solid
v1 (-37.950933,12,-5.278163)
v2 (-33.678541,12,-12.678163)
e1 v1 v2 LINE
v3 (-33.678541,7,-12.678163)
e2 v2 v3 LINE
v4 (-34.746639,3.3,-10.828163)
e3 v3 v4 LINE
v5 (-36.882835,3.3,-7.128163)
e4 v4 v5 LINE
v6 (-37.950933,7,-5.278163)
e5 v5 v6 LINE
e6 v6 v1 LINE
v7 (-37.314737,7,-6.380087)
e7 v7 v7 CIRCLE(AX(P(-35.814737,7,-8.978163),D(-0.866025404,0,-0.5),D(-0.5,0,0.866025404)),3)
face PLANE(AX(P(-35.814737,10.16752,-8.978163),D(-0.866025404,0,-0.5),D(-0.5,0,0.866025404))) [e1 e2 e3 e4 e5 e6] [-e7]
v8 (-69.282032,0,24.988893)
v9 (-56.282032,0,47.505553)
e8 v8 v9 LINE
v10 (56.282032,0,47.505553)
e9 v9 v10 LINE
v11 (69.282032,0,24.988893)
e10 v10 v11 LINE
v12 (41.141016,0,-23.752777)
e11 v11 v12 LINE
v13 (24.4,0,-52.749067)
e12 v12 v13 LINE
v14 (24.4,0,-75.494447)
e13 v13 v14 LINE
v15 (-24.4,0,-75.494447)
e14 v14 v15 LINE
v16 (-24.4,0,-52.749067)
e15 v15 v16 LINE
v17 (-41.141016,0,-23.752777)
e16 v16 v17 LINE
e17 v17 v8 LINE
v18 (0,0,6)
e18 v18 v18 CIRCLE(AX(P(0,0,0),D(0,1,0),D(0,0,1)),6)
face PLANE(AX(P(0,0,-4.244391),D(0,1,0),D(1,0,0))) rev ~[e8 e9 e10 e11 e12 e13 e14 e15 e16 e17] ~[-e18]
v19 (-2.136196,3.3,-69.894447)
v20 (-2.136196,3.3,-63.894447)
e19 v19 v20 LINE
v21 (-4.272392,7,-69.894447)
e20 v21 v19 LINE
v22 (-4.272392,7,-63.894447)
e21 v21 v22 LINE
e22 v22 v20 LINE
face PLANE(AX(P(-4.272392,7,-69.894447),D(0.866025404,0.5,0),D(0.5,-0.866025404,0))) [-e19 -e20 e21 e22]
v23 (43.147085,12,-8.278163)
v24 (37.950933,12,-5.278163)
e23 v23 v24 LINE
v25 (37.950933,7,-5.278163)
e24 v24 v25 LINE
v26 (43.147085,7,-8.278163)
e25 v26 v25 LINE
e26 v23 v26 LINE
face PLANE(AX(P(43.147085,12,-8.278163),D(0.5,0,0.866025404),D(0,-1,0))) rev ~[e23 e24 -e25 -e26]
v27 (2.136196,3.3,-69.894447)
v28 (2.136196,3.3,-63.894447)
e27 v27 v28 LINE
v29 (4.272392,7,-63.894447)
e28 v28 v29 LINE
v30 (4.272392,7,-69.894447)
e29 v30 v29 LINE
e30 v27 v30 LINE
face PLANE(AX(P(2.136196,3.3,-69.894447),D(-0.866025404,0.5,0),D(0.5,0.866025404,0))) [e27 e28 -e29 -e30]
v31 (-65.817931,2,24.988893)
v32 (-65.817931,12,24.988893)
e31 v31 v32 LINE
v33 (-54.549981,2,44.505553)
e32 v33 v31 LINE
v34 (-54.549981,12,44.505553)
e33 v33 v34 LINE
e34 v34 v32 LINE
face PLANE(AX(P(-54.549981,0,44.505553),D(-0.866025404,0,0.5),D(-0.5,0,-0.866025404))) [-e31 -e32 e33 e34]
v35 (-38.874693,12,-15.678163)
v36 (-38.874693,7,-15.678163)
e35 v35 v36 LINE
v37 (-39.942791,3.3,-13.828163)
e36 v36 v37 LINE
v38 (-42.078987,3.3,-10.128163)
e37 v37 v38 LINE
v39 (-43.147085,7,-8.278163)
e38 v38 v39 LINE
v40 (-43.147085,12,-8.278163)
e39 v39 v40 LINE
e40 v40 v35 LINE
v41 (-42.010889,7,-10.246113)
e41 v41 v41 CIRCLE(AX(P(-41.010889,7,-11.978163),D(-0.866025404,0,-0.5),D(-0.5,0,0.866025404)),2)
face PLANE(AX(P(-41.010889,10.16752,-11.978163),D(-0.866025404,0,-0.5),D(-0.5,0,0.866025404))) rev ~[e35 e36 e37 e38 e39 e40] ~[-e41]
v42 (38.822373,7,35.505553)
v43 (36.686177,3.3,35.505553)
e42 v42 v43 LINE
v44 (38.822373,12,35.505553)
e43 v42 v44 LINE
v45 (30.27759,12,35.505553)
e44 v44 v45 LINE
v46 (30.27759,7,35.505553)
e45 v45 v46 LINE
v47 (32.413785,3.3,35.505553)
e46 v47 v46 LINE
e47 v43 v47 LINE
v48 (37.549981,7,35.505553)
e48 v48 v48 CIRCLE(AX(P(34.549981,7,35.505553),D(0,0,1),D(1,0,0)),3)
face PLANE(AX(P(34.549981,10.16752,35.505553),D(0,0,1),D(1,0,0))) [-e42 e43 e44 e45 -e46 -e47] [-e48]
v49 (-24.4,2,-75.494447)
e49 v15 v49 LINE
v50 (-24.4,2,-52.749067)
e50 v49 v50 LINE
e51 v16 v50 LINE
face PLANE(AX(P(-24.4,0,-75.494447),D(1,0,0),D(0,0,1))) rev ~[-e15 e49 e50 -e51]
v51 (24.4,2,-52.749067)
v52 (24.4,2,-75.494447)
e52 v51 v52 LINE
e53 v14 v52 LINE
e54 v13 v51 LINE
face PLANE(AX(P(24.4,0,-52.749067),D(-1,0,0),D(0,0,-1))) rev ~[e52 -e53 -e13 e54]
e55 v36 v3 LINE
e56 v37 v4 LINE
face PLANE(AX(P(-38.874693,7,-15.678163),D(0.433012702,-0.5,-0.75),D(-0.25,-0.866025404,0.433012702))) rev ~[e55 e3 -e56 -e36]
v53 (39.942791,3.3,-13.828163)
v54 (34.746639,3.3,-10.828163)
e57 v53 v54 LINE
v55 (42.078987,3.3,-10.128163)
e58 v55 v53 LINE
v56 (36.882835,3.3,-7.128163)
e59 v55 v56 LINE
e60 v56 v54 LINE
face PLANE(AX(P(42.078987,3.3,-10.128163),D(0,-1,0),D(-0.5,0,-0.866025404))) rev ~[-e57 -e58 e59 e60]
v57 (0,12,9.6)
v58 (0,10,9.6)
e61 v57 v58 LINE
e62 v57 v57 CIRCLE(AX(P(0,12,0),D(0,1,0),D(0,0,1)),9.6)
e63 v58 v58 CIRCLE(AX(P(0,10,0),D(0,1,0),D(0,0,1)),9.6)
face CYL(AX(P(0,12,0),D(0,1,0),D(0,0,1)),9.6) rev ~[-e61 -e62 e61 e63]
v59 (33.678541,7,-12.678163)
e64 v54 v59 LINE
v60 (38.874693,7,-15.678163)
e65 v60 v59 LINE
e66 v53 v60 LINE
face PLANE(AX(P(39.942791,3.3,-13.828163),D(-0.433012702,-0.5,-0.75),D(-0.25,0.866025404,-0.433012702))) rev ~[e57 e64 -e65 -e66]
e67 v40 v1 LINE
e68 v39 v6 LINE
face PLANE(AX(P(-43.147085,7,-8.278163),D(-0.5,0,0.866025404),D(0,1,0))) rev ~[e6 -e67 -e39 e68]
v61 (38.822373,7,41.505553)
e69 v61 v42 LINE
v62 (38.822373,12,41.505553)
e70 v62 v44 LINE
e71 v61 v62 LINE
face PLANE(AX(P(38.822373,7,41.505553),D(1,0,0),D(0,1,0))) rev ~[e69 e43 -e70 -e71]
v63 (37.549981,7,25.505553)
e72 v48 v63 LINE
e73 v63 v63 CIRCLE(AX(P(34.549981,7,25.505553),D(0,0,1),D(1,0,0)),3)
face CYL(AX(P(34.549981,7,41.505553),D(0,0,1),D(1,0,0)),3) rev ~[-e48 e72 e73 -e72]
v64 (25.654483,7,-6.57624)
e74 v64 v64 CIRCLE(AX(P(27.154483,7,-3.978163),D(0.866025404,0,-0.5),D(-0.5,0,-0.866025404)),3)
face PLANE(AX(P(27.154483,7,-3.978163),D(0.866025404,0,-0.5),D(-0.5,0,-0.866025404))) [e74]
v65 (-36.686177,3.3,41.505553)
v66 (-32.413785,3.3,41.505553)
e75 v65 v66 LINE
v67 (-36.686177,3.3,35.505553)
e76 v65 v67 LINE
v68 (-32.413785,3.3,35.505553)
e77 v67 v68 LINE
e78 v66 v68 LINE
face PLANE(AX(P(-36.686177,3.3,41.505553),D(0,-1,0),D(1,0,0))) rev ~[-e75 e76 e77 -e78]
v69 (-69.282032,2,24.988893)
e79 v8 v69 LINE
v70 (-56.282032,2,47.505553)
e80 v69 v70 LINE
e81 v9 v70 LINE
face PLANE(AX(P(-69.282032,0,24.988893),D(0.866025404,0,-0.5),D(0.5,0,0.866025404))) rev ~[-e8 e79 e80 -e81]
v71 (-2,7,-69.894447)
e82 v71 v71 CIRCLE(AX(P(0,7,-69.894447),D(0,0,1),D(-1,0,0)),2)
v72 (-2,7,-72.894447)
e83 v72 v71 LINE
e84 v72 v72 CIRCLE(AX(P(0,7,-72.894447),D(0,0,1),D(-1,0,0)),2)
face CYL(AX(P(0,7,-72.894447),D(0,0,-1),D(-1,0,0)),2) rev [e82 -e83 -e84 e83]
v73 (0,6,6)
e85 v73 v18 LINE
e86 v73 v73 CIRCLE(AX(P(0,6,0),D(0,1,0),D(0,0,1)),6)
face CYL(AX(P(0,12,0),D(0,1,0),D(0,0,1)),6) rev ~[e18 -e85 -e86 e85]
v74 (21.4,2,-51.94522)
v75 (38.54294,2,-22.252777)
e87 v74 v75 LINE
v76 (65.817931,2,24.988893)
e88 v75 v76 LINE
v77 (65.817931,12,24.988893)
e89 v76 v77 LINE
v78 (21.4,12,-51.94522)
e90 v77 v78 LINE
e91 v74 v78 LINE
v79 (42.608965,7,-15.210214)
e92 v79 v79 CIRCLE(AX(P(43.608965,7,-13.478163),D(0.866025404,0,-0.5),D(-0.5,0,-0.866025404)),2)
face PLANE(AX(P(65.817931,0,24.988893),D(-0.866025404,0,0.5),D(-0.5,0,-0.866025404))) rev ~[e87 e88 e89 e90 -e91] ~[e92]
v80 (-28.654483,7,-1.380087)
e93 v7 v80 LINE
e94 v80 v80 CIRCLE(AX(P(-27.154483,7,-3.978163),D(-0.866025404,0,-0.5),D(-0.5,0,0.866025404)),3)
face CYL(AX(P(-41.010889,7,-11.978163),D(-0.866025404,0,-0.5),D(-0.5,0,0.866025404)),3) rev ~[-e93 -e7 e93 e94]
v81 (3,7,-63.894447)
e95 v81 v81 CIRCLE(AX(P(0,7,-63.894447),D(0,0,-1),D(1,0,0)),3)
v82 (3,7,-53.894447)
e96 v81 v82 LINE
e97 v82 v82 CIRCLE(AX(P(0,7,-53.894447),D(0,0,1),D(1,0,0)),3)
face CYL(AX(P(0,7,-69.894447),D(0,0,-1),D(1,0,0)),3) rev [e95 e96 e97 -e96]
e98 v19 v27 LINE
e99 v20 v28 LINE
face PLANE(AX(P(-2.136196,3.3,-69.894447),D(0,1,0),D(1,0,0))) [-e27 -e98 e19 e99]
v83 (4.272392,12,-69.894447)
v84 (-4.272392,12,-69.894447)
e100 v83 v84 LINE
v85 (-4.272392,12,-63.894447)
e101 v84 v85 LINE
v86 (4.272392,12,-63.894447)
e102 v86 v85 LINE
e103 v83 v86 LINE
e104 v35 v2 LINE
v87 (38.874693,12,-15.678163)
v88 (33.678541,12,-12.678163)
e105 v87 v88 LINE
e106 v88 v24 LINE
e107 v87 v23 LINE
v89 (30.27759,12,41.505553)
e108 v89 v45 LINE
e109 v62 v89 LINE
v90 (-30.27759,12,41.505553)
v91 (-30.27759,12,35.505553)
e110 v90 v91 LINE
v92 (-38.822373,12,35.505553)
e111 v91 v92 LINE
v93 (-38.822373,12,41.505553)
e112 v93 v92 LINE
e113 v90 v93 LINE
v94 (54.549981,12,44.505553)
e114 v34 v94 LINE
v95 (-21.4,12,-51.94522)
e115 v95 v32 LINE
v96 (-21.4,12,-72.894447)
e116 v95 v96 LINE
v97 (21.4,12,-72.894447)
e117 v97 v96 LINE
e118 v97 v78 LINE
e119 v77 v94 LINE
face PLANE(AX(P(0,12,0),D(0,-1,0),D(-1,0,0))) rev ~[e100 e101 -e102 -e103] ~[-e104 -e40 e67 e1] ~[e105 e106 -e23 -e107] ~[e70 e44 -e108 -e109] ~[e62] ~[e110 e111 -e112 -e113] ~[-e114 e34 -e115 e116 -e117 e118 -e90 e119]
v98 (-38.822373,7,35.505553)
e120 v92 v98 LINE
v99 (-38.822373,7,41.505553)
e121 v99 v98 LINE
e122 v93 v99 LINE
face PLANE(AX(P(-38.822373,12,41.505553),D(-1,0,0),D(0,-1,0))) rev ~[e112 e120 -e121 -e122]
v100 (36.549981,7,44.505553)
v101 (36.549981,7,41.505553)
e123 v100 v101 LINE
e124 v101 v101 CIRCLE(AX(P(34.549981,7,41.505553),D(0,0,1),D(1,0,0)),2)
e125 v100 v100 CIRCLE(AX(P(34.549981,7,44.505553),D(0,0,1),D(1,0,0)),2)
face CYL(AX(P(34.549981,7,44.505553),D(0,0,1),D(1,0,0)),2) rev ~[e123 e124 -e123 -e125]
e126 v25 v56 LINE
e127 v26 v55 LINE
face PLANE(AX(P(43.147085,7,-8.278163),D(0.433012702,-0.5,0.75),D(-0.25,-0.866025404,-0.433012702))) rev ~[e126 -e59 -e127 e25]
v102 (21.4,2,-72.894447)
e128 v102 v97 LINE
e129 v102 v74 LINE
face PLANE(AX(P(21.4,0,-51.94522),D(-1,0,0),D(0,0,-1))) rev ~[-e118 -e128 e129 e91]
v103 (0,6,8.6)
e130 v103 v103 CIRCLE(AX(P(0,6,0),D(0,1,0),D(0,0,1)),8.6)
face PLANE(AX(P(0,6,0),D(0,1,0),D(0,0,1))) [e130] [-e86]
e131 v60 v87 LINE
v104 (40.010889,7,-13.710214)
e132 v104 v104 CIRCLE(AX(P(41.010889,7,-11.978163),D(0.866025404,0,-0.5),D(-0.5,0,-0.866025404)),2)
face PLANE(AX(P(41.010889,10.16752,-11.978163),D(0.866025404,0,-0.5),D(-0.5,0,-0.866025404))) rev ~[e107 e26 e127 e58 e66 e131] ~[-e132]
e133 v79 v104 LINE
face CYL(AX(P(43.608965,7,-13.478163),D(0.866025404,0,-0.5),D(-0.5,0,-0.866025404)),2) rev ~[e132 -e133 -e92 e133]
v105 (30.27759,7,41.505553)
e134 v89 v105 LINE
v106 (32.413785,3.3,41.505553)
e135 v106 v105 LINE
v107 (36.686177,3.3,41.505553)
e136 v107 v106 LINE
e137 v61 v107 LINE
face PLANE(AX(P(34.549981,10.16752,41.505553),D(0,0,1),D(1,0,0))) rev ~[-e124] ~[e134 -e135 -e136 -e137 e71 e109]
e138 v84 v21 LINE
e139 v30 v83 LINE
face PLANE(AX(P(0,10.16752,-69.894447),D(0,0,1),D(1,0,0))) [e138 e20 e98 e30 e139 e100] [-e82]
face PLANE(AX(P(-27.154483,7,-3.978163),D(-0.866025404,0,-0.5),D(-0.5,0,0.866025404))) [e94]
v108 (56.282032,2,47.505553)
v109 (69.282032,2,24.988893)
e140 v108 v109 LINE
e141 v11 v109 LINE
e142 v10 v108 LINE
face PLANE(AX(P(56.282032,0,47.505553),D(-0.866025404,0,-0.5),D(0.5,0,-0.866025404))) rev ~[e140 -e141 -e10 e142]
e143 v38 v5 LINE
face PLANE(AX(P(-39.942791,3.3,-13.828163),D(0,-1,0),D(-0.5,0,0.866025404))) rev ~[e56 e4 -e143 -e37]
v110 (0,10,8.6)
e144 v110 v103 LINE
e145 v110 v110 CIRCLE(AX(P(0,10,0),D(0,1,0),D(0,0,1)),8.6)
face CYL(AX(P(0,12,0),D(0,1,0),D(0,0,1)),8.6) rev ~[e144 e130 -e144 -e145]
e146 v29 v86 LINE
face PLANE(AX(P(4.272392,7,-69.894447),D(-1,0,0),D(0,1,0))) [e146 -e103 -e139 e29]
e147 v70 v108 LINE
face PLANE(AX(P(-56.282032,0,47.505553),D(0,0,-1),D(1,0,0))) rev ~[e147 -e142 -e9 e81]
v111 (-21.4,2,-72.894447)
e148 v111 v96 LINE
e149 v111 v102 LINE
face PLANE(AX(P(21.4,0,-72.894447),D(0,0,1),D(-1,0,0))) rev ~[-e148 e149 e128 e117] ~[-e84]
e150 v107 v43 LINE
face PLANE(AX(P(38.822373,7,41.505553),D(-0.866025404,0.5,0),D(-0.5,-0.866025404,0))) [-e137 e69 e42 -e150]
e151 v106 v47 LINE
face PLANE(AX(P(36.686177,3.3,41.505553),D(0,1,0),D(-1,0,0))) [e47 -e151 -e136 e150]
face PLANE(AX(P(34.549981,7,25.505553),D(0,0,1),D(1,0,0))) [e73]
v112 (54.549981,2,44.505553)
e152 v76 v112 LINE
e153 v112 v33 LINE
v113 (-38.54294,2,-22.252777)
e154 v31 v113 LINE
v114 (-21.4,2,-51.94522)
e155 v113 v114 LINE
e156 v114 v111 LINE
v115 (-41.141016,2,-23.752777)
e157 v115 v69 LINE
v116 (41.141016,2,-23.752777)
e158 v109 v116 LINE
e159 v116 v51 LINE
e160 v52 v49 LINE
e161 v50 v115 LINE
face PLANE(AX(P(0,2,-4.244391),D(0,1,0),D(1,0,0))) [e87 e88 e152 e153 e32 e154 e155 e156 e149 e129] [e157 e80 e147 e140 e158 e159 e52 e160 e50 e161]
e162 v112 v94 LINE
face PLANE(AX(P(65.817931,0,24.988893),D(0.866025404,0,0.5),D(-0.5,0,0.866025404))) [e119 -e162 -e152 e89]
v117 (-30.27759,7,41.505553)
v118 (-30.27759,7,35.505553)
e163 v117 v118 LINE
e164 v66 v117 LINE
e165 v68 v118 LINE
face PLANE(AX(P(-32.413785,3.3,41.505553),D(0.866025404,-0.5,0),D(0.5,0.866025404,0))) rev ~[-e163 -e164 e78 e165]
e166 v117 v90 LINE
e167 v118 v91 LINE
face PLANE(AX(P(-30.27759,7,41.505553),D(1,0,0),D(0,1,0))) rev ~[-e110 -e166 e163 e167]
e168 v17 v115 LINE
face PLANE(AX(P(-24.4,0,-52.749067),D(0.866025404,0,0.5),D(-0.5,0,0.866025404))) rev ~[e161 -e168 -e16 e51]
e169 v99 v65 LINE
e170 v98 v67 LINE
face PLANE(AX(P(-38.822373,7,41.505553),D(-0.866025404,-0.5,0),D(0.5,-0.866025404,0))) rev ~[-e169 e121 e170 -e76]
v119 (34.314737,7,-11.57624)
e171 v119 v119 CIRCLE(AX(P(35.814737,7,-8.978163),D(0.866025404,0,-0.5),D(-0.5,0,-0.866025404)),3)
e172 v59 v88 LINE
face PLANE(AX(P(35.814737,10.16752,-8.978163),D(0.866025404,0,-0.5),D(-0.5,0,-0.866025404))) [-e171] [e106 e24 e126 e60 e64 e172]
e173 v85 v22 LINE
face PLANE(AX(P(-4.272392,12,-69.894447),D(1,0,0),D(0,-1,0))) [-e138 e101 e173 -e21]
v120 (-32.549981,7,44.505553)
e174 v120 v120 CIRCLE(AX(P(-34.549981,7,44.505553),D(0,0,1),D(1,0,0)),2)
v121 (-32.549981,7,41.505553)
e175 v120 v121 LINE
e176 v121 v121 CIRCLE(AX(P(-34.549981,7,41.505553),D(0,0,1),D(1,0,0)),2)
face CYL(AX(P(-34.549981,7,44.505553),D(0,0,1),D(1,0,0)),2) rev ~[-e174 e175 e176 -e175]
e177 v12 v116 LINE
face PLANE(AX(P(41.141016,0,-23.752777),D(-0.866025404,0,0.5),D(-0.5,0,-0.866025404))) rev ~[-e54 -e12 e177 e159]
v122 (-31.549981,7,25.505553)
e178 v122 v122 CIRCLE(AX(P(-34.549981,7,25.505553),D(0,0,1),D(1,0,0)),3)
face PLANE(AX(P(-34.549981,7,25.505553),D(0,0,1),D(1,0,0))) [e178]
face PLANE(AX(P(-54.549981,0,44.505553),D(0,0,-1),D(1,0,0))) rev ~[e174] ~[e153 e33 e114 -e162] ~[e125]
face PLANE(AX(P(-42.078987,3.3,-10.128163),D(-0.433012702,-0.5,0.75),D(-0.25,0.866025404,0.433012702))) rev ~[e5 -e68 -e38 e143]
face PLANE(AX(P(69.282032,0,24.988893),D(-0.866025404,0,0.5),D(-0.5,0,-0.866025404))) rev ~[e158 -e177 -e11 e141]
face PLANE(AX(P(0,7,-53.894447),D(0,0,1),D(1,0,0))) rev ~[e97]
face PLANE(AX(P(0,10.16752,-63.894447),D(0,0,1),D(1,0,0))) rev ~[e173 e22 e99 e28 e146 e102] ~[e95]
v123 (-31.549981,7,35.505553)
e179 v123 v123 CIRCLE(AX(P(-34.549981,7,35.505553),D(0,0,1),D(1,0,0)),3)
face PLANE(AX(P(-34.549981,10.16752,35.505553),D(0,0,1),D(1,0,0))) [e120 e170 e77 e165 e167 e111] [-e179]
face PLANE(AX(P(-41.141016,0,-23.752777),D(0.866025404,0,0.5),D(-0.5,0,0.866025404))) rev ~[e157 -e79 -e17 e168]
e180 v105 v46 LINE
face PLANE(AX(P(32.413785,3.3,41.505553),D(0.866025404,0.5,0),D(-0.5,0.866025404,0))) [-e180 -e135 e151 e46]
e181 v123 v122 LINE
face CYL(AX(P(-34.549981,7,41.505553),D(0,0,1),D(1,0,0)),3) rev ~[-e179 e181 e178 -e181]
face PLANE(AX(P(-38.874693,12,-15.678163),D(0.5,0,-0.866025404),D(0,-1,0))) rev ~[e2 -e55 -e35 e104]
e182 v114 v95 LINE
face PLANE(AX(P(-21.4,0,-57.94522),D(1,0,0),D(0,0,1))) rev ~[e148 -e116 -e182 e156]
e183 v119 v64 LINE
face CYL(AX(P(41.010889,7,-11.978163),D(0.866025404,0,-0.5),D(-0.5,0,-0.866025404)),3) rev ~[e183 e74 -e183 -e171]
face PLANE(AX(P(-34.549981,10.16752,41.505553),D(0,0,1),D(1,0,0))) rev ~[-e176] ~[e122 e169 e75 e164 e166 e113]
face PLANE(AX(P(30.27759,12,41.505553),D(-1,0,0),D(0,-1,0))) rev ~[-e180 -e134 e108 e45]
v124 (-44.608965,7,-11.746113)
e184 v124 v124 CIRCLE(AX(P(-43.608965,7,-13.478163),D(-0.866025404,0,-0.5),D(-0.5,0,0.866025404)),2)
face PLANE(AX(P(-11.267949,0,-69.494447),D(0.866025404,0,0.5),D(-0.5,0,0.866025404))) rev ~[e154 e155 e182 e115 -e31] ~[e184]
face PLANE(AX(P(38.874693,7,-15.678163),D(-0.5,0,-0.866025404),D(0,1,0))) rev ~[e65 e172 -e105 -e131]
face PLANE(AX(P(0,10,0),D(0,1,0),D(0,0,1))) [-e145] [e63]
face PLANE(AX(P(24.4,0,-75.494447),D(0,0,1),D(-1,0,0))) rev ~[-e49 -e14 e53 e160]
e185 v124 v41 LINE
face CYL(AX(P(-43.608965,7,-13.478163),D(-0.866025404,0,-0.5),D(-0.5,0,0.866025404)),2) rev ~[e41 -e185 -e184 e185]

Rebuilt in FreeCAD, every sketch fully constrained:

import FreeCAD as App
import Part
import Sketcher
Q = App.Units.Quantity

doc = App.newDocument("Part")
body = doc.addObject("PartDesign::Body", "Body")

sketch1 = body.newObject("Sketcher::SketchObject", "Sketch")
sketch1.AttachmentSupport = (doc.getObject("XZ_Plane"), [""])
sketch1.MapMode = "FlatFace"
sketch1.addGeometry([
    Part.LineSegment(App.Vector(-21, -52, 0), App.Vector(-66, 25, 0)),
    Part.LineSegment(App.Vector(-66, 25, 0), App.Vector(-55, 45, 0)),
    Part.LineSegment(App.Vector(-55, 45, 0), App.Vector(55, 45, 0)),
    Part.LineSegment(App.Vector(55, 45, 0), App.Vector(66, 25, 0)),
    Part.LineSegment(App.Vector(66, 25, 0), App.Vector(21, -52, 0)),
    Part.LineSegment(App.Vector(21, -52, 0), App.Vector(21, -73, 0)),
    Part.LineSegment(App.Vector(21, -73, 0), App.Vector(-21, -73, 0)),
    Part.LineSegment(App.Vector(-21, -73, 0), App.Vector(-21, -52, 0)),
], False)
sketch1.addConstraint([
    Sketcher.Constraint("Coincident", 0, 2, 1, 1),
    Sketcher.Constraint("Coincident", 1, 2, 2, 1),
    Sketcher.Constraint("Coincident", 2, 2, 3, 1),
    Sketcher.Constraint("Coincident", 3, 2, 4, 1),
    Sketcher.Constraint("Coincident", 4, 2, 5, 1),
    Sketcher.Constraint("Coincident", 5, 2, 6, 1),
    Sketcher.Constraint("Coincident", 6, 2, 7, 1),
    Sketcher.Constraint("Coincident", 7, 2, 0, 1),
    Sketcher.Constraint("Horizontal", 2),
    Sketcher.Constraint("Vertical", 5),
    Sketcher.Constraint("Horizontal", 6),
    Sketcher.Constraint("Vertical", 7),
    Sketcher.Constraint("Symmetric", 0, 2, 3, 2, -2),
    Sketcher.Constraint("Symmetric", 4, 2, 7, 2, -2),
    Sketcher.Constraint("Parallel", 0, 3),
    Sketcher.Constraint("Parallel", 1, 4),
    Sketcher.Constraint("Angle", 0, Q("120 deg")),
    Sketcher.Constraint("DistanceX", 6, 2, 6, 1, Q("42.8 mm")),
    Sketcher.Constraint("DistanceY", 5, 2, 2, 2, Q("117.4 mm")),
    Sketcher.Constraint("Distance", 1, Q("22.535898 mm")),
    Sketcher.Constraint("Distance", 0, Q("88.835861 mm")),
    Sketcher.Constraint("DistanceY", 4, 2, -1, 1, Q("51.94522 mm")),
])
pad1 = body.newObject("PartDesign::Pad", "Pad")
pad1.Profile = sketch1
pad1.Length = 12
pad1.Reversed = True

sketch2 = body.newObject("Sketcher::SketchObject", "Sketch001")
sketch2.AttachmentSupport = (doc.getObject("XZ_Plane"), [""])
sketch2.MapMode = "FlatFace"
sketch2.addGeometry([
    Part.LineSegment(App.Vector(56, 48, 0), App.Vector(69, 25, 0)),
    Part.LineSegment(App.Vector(69, 25, 0), App.Vector(41, -24, 0)),
    Part.LineSegment(App.Vector(41, -24, 0), App.Vector(24, -53, 0)),
    Part.LineSegment(App.Vector(24, -53, 0), App.Vector(24, -75, 0)),
    Part.LineSegment(App.Vector(24, -75, 0), App.Vector(-24, -75, 0)),
    Part.LineSegment(App.Vector(-24, -75, 0), App.Vector(-24, -53, 0)),
    Part.LineSegment(App.Vector(-24, -53, 0), App.Vector(-41, -24, 0)),
    Part.LineSegment(App.Vector(-41, -24, 0), App.Vector(-69, 25, 0)),
    Part.LineSegment(App.Vector(-69, 25, 0), App.Vector(-56, 48, 0)),
    Part.LineSegment(App.Vector(-56, 48, 0), App.Vector(56, 48, 0)),
    Part.LineSegment(App.Vector(-39, -22, 0), App.Vector(-21, -52, 0)),
    Part.LineSegment(App.Vector(-21, -52, 0), App.Vector(-21, -73, 0)),
    Part.LineSegment(App.Vector(-21, -73, 0), App.Vector(21, -73, 0)),
    Part.LineSegment(App.Vector(21, -73, 0), App.Vector(21, -52, 0)),
    Part.LineSegment(App.Vector(21, -52, 0), App.Vector(39, -22, 0)),
    Part.LineSegment(App.Vector(39, -22, 0), App.Vector(66, 25, 0)),
    Part.LineSegment(App.Vector(66, 25, 0), App.Vector(55, 45, 0)),
    Part.LineSegment(App.Vector(55, 45, 0), App.Vector(-55, 45, 0)),
    Part.LineSegment(App.Vector(-55, 45, 0), App.Vector(-66, 25, 0)),
    Part.LineSegment(App.Vector(-66, 25, 0), App.Vector(-39, -22, 0)),
], False)
sketch2.addConstraint([
    Sketcher.Constraint("Coincident", 0, 2, 1, 1),
    Sketcher.Constraint("Coincident", 1, 2, 2, 1),
    Sketcher.Constraint("Coincident", 2, 2, 3, 1),
    Sketcher.Constraint("Coincident", 3, 2, 4, 1),
    Sketcher.Constraint("Coincident", 4, 2, 5, 1),
    Sketcher.Constraint("Coincident", 5, 2, 6, 1),
    Sketcher.Constraint("Coincident", 6, 2, 7, 1),
    Sketcher.Constraint("Coincident", 7, 2, 8, 1),
    Sketcher.Constraint("Coincident", 8, 2, 9, 1),
    Sketcher.Constraint("Coincident", 9, 2, 0, 1),
    Sketcher.Constraint("Coincident", 10, 2, 11, 1),
    Sketcher.Constraint("Coincident", 11, 2, 12, 1),
    Sketcher.Constraint("Coincident", 12, 2, 13, 1),
    Sketcher.Constraint("Coincident", 13, 2, 14, 1),
    Sketcher.Constraint("Coincident", 14, 2, 15, 1),
    Sketcher.Constraint("Coincident", 15, 2, 16, 1),
    Sketcher.Constraint("Coincident", 16, 2, 17, 1),
    Sketcher.Constraint("Coincident", 17, 2, 18, 1),
    Sketcher.Constraint("Coincident", 18, 2, 19, 1),
    Sketcher.Constraint("Coincident", 19, 2, 10, 1),
    Sketcher.Constraint("Vertical", 3),
    Sketcher.Constraint("Horizontal", 4),
    Sketcher.Constraint("Vertical", 5),
    Sketcher.Constraint("Horizontal", 9),
    Sketcher.Constraint("Vertical", 11),
    Sketcher.Constraint("Horizontal", 12),
    Sketcher.Constraint("Vertical", 13),
    Sketcher.Constraint("Horizontal", 17),
    Sketcher.Constraint("Symmetric", 2, 2, 5, 2, -2),
    Sketcher.Constraint("Symmetric", 1, 2, 6, 2, -2),
    Sketcher.Constraint("Symmetric", 0, 2, 7, 2, -2),
    Sketcher.Constraint("Symmetric", 10, 2, 13, 2, -2),
    Sketcher.Constraint("Symmetric", 15, 2, 18, 2, -2),
    Sketcher.Constraint("Symmetric", 14, 2, 19, 2, -2),
    Sketcher.Constraint("Parallel", 1, 2),
    Sketcher.Constraint("Parallel", 0, 6),
    Sketcher.Constraint("Parallel", 2, 8),
    Sketcher.Constraint("Parallel", 7, 10),
    Sketcher.Constraint("Parallel", 14, 15),
    Sketcher.Constraint("Parallel", 10, 16),
    Sketcher.Constraint("Parallel", 15, 18),
    Sketcher.Constraint("Horizontal", 7, 2, 15, 2),
    Sketcher.Constraint("Angle", 0, Q("-60 deg")),
    Sketcher.Constraint("Distance", 0, Q("26 mm")),
    Sketcher.Constraint("DistanceX", 4, 2, 4, 1, Q("48.8 mm")),
    Sketcher.Constraint("DistanceX", 12, 1, 12, 2, Q("42.8 mm")),
    Sketcher.Constraint("DistanceY", 4, 2, 8, 2, Q("123 mm")),
    Sketcher.Constraint("DistanceY", 16, 2, 9, 2, Q("3 mm")),
    Sketcher.Constraint("DistanceY", 4, 2, 11, 2, Q("2.6 mm")),
    Sketcher.Constraint("DistanceY", 1, 2, 14, 2, Q("1.5 mm")),
    Sketcher.Constraint("DistanceY", 3, 2, 3, 1, Q("22.745379 mm")),
    Sketcher.Constraint("DistanceX", 15, 2, 0, 2, Q("3.464102 mm")),
    Sketcher.Constraint("Distance", 10, Q("34.28588 mm")),
    Sketcher.Constraint("DistanceY", 10, 2, -1, 1, Q("51.94522 mm")),
])
pad2 = body.newObject("PartDesign::Pad", "Pad001")
pad2.Profile = sketch2
pad2.Length = 2
pad2.Reversed = True

sketch3 = body.newObject("Sketcher::SketchObject", "Sketch002")
sketch3.AttachmentSupport = (doc.getObject("XZ_Plane"), [""])
sketch3.MapMode = "FlatFace"
sketch3.AttachmentOffset = App.Placement(App.Vector(0, 0, -12), App.Rotation())
sketch3.addGeometry([
    Part.Circle(App.Vector(0, 0, 0), App.Vector(0, 0, 1), 10),
    Part.Circle(App.Vector(0, 0, 0), App.Vector(0, 0, 1), 9),
], False)
sketch3.addConstraint([
    Sketcher.Constraint("Coincident", 0, 3, -1, 1),
    Sketcher.Constraint("Coincident", 1, 3, -1, 1),
    Sketcher.Constraint("Diameter", 0, Q("19.2 mm")),
    Sketcher.Constraint("Diameter", 1, Q("17.2 mm")),
])
pocket1 = body.newObject("PartDesign::Pocket", "Pocket")
pocket1.Profile = sketch3
pocket1.Length = 2
pocket1.Reversed = True

sketch4 = body.newObject("Sketcher::SketchObject", "Sketch003")
sketch4.AttachmentSupport = (doc.getObject("XZ_Plane"), [""])
sketch4.MapMode = "FlatFace"
sketch4.AttachmentOffset = App.Placement(App.Vector(0, 0, -12), App.Rotation())
sketch4.addGeometry([
    Part.Circle(App.Vector(0, 0, 0), App.Vector(0, 0, 1), 9),
    Part.Circle(App.Vector(0, 0, 0), App.Vector(0, 0, 1), 6),
], False)
sketch4.addConstraint([
    Sketcher.Constraint("Coincident", 0, 3, -1, 1),
    Sketcher.Constraint("Coincident", 1, 3, -1, 1),
    Sketcher.Constraint("Diameter", 1, Q("12 mm")),
    Sketcher.Constraint("Diameter", 0, Q("17.2 mm")),
])
pocket2 = body.newObject("PartDesign::Pocket", "Pocket001")
pocket2.Profile = sketch4
pocket2.Length = 6
pocket2.Reversed = True

sketch5 = body.newObject("Sketcher::SketchObject", "Sketch004")
sketch5.AttachmentSupport = (doc.getObject("XZ_Plane"), [""])
sketch5.MapMode = "FlatFace"
sketch5.AttachmentOffset = App.Placement(App.Vector(0, 0, -12), App.Rotation())
sketch5.addGeometry(Part.Circle(App.Vector(0, 0, 0), App.Vector(0, 0, 1), 6), False)
sketch5.addConstraint([
    Sketcher.Constraint("Coincident", 0, 3, -1, 1),
    Sketcher.Constraint("Diameter", 0, Q("12 mm")),
])
pocket3 = body.newObject("PartDesign::Pocket", "Pocket002")
pocket3.Profile = sketch5
pocket3.Type = "ThroughAll"
pocket3.Reversed = True

sketch6 = body.newObject("Sketcher::SketchObject", "Sketch005")
sketch6.AttachmentSupport = (doc.getObject("XY_Plane"), [""])
sketch6.MapMode = "FlatFace"
sketch6.AttachmentOffset = App.Placement(App.Vector(0, 0, 44.505553), App.Rotation())
sketch6.addGeometry([
    Part.Circle(App.Vector(-34.5, 7, 0), App.Vector(0, 0, 1), 2),
    Part.Circle(App.Vector(34.5, 7, 0), App.Vector(0, 0, 1), 2),
], False)
sketch6.addConstraint([
    Sketcher.Constraint("Equal", 0, 1),
    Sketcher.Constraint("Symmetric", 0, 3, 1, 3, -2),
    Sketcher.Constraint("Diameter", 0, Q("4 mm")),
    Sketcher.Constraint("DistanceY", -1, 1, 0, 3, Q("7 mm")),
    Sketcher.Constraint("DistanceX", 0, 3, -1, 1, Q("34.549981 mm")),
])
pocket4 = body.newObject("PartDesign::Pocket", "Pocket003")
pocket4.Profile = sketch6
pocket4.Length = 3

sketch7 = body.newObject("Sketcher::SketchObject", "Sketch006")
sketch7.AttachmentSupport = (doc.getObject("XY_Plane"), [""])
sketch7.MapMode = "FlatFace"
sketch7.AttachmentOffset = App.Placement(App.Vector(0, 0, 41.505553), App.Rotation())
sketch7.addGeometry([
    Part.LineSegment(App.Vector(-38.8, 12, 0), App.Vector(-38.8, 7, 0)),
    Part.LineSegment(App.Vector(-38.8, 7, 0), App.Vector(-36.7, 3.3, 0)),
    Part.LineSegment(App.Vector(-36.7, 3.3, 0), App.Vector(-32.4, 3.3, 0)),
    Part.LineSegment(App.Vector(-32.4, 3.3, 0), App.Vector(-30.3, 7, 0)),
    Part.LineSegment(App.Vector(-30.3, 7, 0), App.Vector(-30.3, 12, 0)),
    Part.LineSegment(App.Vector(-30.3, 12, 0), App.Vector(-38.8, 12, 0)),
    Part.LineSegment(App.Vector(36.7, 3.3, 0), App.Vector(38.8, 7, 0)),
    Part.LineSegment(App.Vector(38.8, 7, 0), App.Vector(38.8, 12, 0)),
    Part.LineSegment(App.Vector(38.8, 12, 0), App.Vector(30.3, 12, 0)),
    Part.LineSegment(App.Vector(30.3, 12, 0), App.Vector(30.3, 7, 0)),
    Part.LineSegment(App.Vector(30.3, 7, 0), App.Vector(32.4, 3.3, 0)),
    Part.LineSegment(App.Vector(32.4, 3.3, 0), App.Vector(36.7, 3.3, 0)),
], False)
sketch7.addConstraint([
    Sketcher.Constraint("Coincident", 0, 2, 1, 1),
    Sketcher.Constraint("Coincident", 1, 2, 2, 1),
    Sketcher.Constraint("Coincident", 2, 2, 3, 1),
    Sketcher.Constraint("Coincident", 3, 2, 4, 1),
    Sketcher.Constraint("Coincident", 4, 2, 5, 1),
    Sketcher.Constraint("Coincident", 5, 2, 0, 1),
    Sketcher.Constraint("Coincident", 6, 2, 7, 1),
    Sketcher.Constraint("Coincident", 7, 2, 8, 1),
    Sketcher.Constraint("Coincident", 8, 2, 9, 1),
    Sketcher.Constraint("Coincident", 9, 2, 10, 1),
    Sketcher.Constraint("Coincident", 10, 2, 11, 1),
    Sketcher.Constraint("Coincident", 11, 2, 6, 1),
    Sketcher.Constraint("Vertical", 0),
    Sketcher.Constraint("Horizontal", 2),
    Sketcher.Constraint("Vertical", 4),
    Sketcher.Constraint("Horizontal", 5),
    Sketcher.Constraint("Vertical", 7),
    Sketcher.Constraint("Horizontal", 8),
    Sketcher.Constraint("Vertical", 9),
    Sketcher.Constraint("Horizontal", 11),
    Sketcher.Constraint("Symmetric", 0, 2, 6, 2, -2),
    Sketcher.Constraint("Symmetric", 4, 2, 8, 2, -2),
    Sketcher.Constraint("Symmetric", 2, 2, 10, 2, -2),
    Sketcher.Constraint("Parallel", 3, 6),
    Sketcher.Constraint("Parallel", 1, 10),
    Sketcher.Constraint("Horizontal", 0, 2, 3, 2),
    Sketcher.Constraint("Horizontal", 6, 2, 9, 2),
    Sketcher.Constraint("DistanceY", 0, 2, 0, 1, Q("5 mm")),
    Sketcher.Constraint("Angle", 1, Q("-60 deg")),
    Sketcher.Constraint("DistanceY", -1, 1, 0, 2, Q("7 mm")),
    Sketcher.Constraint("DistanceY", -1, 1, 1, 2, Q("3.3 mm")),
    Sketcher.Constraint("DistanceX", 2, 1, 2, 2, Q("4.272392 mm")),
    Sketcher.Constraint("DistanceX", 3, 2, -1, 1, Q("30.27759 mm")),
])
pocket5 = body.newObject("PartDesign::Pocket", "Pocket004")
pocket5.Profile = sketch7
pocket5.Length = 6

sketch8 = body.newObject("Sketcher::SketchObject", "Sketch007")
sketch8.AttachmentSupport = (doc.getObject("XY_Plane"), [""])
sketch8.MapMode = "FlatFace"
sketch8.AttachmentOffset = App.Placement(App.Vector(0, 0, 41.505553), App.Rotation())
sketch8.addGeometry([
    Part.Circle(App.Vector(-34.5, 7, 0), App.Vector(0, 0, 1), 3),
    Part.Circle(App.Vector(34.5, 7, 0), App.Vector(0, 0, 1), 3),
], False)
sketch8.addConstraint([
    Sketcher.Constraint("Equal", 0, 1),
    Sketcher.Constraint("Symmetric", 0, 3, 1, 3, -2),
    Sketcher.Constraint("Diameter", 0, Q("6 mm")),
    Sketcher.Constraint("DistanceY", -1, 1, 0, 3, Q("7 mm")),
    Sketcher.Constraint("DistanceX", 0, 3, -1, 1, Q("34.549981 mm")),
])
pocket6 = body.newObject("PartDesign::Pocket", "Pocket005")
pocket6.Profile = sketch8
pocket6.Length = 16

sketch9 = body.newObject("Sketcher::SketchObject", "Sketch008")
sketch9.AttachmentSupport = (doc.getObject("XY_Plane"), [""])
sketch9.MapMode = "FlatFace"
sketch9.AttachmentOffset = App.Placement(App.Vector(0, 0, -72.894447), App.Rotation())
sketch9.addGeometry(Part.Circle(App.Vector(0, 7, 0), App.Vector(0, 0, 1), 2), False)
sketch9.addConstraint([
    Sketcher.Constraint("PointOnObject", 0, 3, -2),
    Sketcher.Constraint("Diameter", 0, Q("4 mm")),
    Sketcher.Constraint("DistanceY", -1, 1, 0, 3, Q("7 mm")),
])
pocket7 = body.newObject("PartDesign::Pocket", "Pocket006")
pocket7.Profile = sketch9
pocket7.Length = 3
pocket7.Reversed = True

sketch10 = body.newObject("Sketcher::SketchObject", "Sketch009")
sketch10.AttachmentSupport = (doc.getObject("XY_Plane"), [""])
sketch10.MapMode = "FlatFace"
sketch10.AttachmentOffset = App.Placement(App.Vector(0, 0, -69.894447), App.Rotation())
sketch10.addGeometry([
    Part.LineSegment(App.Vector(4.3, 7, 0), App.Vector(4.3, 12, 0)),
    Part.LineSegment(App.Vector(4.3, 12, 0), App.Vector(-4.3, 12, 0)),
    Part.LineSegment(App.Vector(-4.3, 12, 0), App.Vector(-4.3, 7, 0)),
    Part.LineSegment(App.Vector(-4.3, 7, 0), App.Vector(-2.1, 3.3, 0)),
    Part.LineSegment(App.Vector(-2.1, 3.3, 0), App.Vector(2.1, 3.3, 0)),
    Part.LineSegment(App.Vector(2.1, 3.3, 0), App.Vector(4.3, 7, 0)),
], False)
sketch10.addConstraint([
    Sketcher.Constraint("Coincident", 0, 2, 1, 1),
    Sketcher.Constraint("Coincident", 1, 2, 2, 1),
    Sketcher.Constraint("Coincident", 2, 2, 3, 1),
    Sketcher.Constraint("Coincident", 3, 2, 4, 1),
    Sketcher.Constraint("Coincident", 4, 2, 5, 1),
    Sketcher.Constraint("Coincident", 5, 2, 0, 1),
    Sketcher.Constraint("Vertical", 0),
    Sketcher.Constraint("Horizontal", 1),
    Sketcher.Constraint("Vertical", 2),
    Sketcher.Constraint("Horizontal", 4),
    Sketcher.Constraint("Symmetric", 2, 2, 5, 2, -2),
    Sketcher.Constraint("Equal", 3, 5),
    Sketcher.Constraint("DistanceY", 0, 1, 0, 2, Q("5 mm")),
    Sketcher.Constraint("Angle", 3, Q("-60 deg")),
    Sketcher.Constraint("DistanceY", -1, 1, 0, 2, Q("12 mm")),
    Sketcher.Constraint("DistanceY", -1, 1, 3, 2, Q("3.3 mm")),
    Sketcher.Constraint("DistanceX", 4, 1, 4, 2, Q("4.272392 mm")),
])
pocket8 = body.newObject("PartDesign::Pocket", "Pocket007")
pocket8.Profile = sketch10
pocket8.Length = 6
pocket8.Reversed = True

sketch11 = body.newObject("Sketcher::SketchObject", "Sketch010")
sketch11.AttachmentSupport = (doc.getObject("XY_Plane"), [""])
sketch11.MapMode = "FlatFace"
sketch11.AttachmentOffset = App.Placement(App.Vector(0, 0, -69.894447), App.Rotation())
sketch11.addGeometry(Part.Circle(App.Vector(0, 7, 0), App.Vector(0, 0, 1), 3), False)
sketch11.addConstraint([
    Sketcher.Constraint("PointOnObject", 0, 3, -2),
    Sketcher.Constraint("Diameter", 0, Q("6 mm")),
    Sketcher.Constraint("DistanceY", -1, 1, 0, 3, Q("7 mm")),
])
pocket9 = body.newObject("PartDesign::Pocket", "Pocket008")
pocket9.Profile = sketch11
pocket9.Length = 16
pocket9.Reversed = True

sketch12 = body.newObject("Sketcher::SketchObject", "Sketch011")
sketch12.Placement = App.Placement(App.Vector(38.54294, 0, -22.252777), App.Rotation(App.Vector(-0.5, 0, -0.866025404), App.Vector(0, 1, 0), App.Vector(0.866025404, 0, -0.5), "ZXY"))
sketch12.addGeometry(Part.Circle(App.Vector(-10.1, 7, 0), App.Vector(0, 0, 1), 2), False)
sketch12.addConstraint([
    Sketcher.Constraint("Diameter", 0, Q("4 mm")),
    Sketcher.Constraint("DistanceY", -1, 1, 0, 3, Q("7 mm")),
    Sketcher.Constraint("DistanceX", 0, 3, -1, 1, Q("10.132051 mm")),
])
pocket10 = body.newObject("PartDesign::Pocket", "Pocket009")
pocket10.Profile = sketch12
pocket10.Length = 3

sketch13 = body.newObject("Sketcher::SketchObject", "Sketch012")
sketch13.Placement = App.Placement(App.Vector(35.944864, 0, -20.752777), App.Rotation(App.Vector(-0.5, 0, -0.866025404), App.Vector(0, 1, 0), App.Vector(0.866025404, 0, -0.5), "ZXY"))
sketch13.addGeometry([
    Part.LineSegment(App.Vector(-14.4, 12, 0), App.Vector(-14.4, 7, 0)),
    Part.LineSegment(App.Vector(-14.4, 7, 0), App.Vector(-12.3, 3.3, 0)),
    Part.LineSegment(App.Vector(-12.3, 3.3, 0), App.Vector(-8, 3.3, 0)),
    Part.LineSegment(App.Vector(-8, 3.3, 0), App.Vector(-5.9, 7, 0)),
    Part.LineSegment(App.Vector(-5.9, 7, 0), App.Vector(-5.9, 12, 0)),
    Part.LineSegment(App.Vector(-5.9, 12, 0), App.Vector(-14.4, 12, 0)),
], False)
sketch13.addConstraint([
    Sketcher.Constraint("Coincident", 0, 2, 1, 1),
    Sketcher.Constraint("Coincident", 1, 2, 2, 1),
    Sketcher.Constraint("Coincident", 2, 2, 3, 1),
    Sketcher.Constraint("Coincident", 3, 2, 4, 1),
    Sketcher.Constraint("Coincident", 4, 2, 5, 1),
    Sketcher.Constraint("Coincident", 5, 2, 0, 1),
    Sketcher.Constraint("Vertical", 0),
    Sketcher.Constraint("Horizontal", 2),
    Sketcher.Constraint("Vertical", 4),
    Sketcher.Constraint("Horizontal", 5),
    Sketcher.Constraint("Horizontal", 0, 2, 3, 2),
    Sketcher.Constraint("Equal", 1, 3),
    Sketcher.Constraint("DistanceY", 0, 2, 0, 1, Q("5 mm")),
    Sketcher.Constraint("Angle", 1, Q("-60 deg")),
    Sketcher.Constraint("DistanceY", -1, 1, 0, 2, Q("7 mm")),
    Sketcher.Constraint("DistanceY", -1, 1, 1, 2, Q("3.3 mm")),
    Sketcher.Constraint("DistanceX", 2, 1, 2, 2, Q("4.272392 mm")),
    Sketcher.Constraint("DistanceX", 3, 2, -1, 1, Q("5.859659 mm")),
])
pocket11 = body.newObject("PartDesign::Pocket", "Pocket010")
pocket11.Profile = sketch13
pocket11.Length = 6

sketch14 = body.newObject("Sketcher::SketchObject", "Sketch013")
sketch14.Placement = App.Placement(App.Vector(35.944864, 0, -20.752777), App.Rotation(App.Vector(-0.5, 0, -0.866025404), App.Vector(0, 1, 0), App.Vector(0.866025404, 0, -0.5), "ZXY"))
sketch14.addGeometry(Part.Circle(App.Vector(-10.1, 7, 0), App.Vector(0, 0, 1), 3), False)
sketch14.addConstraint([
    Sketcher.Constraint("Diameter", 0, Q("6 mm")),
    Sketcher.Constraint("DistanceY", -1, 1, 0, 3, Q("7 mm")),
    Sketcher.Constraint("DistanceX", 0, 3, -1, 1, Q("10.132051 mm")),
])
pocket12 = body.newObject("PartDesign::Pocket", "Pocket011")
pocket12.Profile = sketch14
pocket12.Length = 16

sketch15 = body.newObject("Sketcher::SketchObject", "Sketch014")
sketch15.Placement = App.Placement(App.Vector(-38.54294, 0, -22.252777), App.Rotation(App.Vector(-0.5, 0, 0.866025404), App.Vector(0, 1, 0), App.Vector(-0.866025404, 0, -0.5), "ZXY"))
sketch15.addGeometry(Part.Circle(App.Vector(10.1, 7, 0), App.Vector(0, 0, 1), 2), False)
sketch15.addConstraint([
    Sketcher.Constraint("Diameter", 0, Q("4 mm")),
    Sketcher.Constraint("DistanceY", -1, 1, 0, 3, Q("7 mm")),
    Sketcher.Constraint("DistanceX", -1, 1, 0, 3, Q("10.132051 mm")),
])
pocket13 = body.newObject("PartDesign::Pocket", "Pocket012")
pocket13.Profile = sketch15
pocket13.Length = 3

sketch16 = body.newObject("Sketcher::SketchObject", "Sketch015")
sketch16.Placement = App.Placement(App.Vector(-35.944864, 0, -20.752777), App.Rotation(App.Vector(-0.5, 0, 0.866025404), App.Vector(0, 1, 0), App.Vector(-0.866025404, 0, -0.5), "ZXY"))
sketch16.addGeometry([
    Part.LineSegment(App.Vector(5.9, 12, 0), App.Vector(5.9, 7, 0)),
    Part.LineSegment(App.Vector(5.9, 7, 0), App.Vector(8, 3.3, 0)),
    Part.LineSegment(App.Vector(8, 3.3, 0), App.Vector(12.3, 3.3, 0)),
    Part.LineSegment(App.Vector(12.3, 3.3, 0), App.Vector(14.4, 7, 0)),
    Part.LineSegment(App.Vector(14.4, 7, 0), App.Vector(14.4, 12, 0)),
    Part.LineSegment(App.Vector(14.4, 12, 0), App.Vector(5.9, 12, 0)),
], False)
sketch16.addConstraint([
    Sketcher.Constraint("Coincident", 0, 2, 1, 1),
    Sketcher.Constraint("Coincident", 1, 2, 2, 1),
    Sketcher.Constraint("Coincident", 2, 2, 3, 1),
    Sketcher.Constraint("Coincident", 3, 2, 4, 1),
    Sketcher.Constraint("Coincident", 4, 2, 5, 1),
    Sketcher.Constraint("Coincident", 5, 2, 0, 1),
    Sketcher.Constraint("Vertical", 0),
    Sketcher.Constraint("Horizontal", 2),
    Sketcher.Constraint("Vertical", 4),
    Sketcher.Constraint("Horizontal", 5),
    Sketcher.Constraint("Horizontal", 0, 2, 3, 2),
    Sketcher.Constraint("Equal", 1, 3),
    Sketcher.Constraint("DistanceY", 0, 2, 0, 1, Q("5 mm")),
    Sketcher.Constraint("Angle", 1, Q("-60 deg")),
    Sketcher.Constraint("DistanceY", -1, 1, 0, 2, Q("7 mm")),
    Sketcher.Constraint("DistanceY", -1, 1, 1, 2, Q("3.3 mm")),
    Sketcher.Constraint("DistanceX", 2, 1, 2, 2, Q("4.272392 mm")),
    Sketcher.Constraint("DistanceX", -1, 1, 0, 2, Q("5.859659 mm")),
])
pocket14 = body.newObject("PartDesign::Pocket", "Pocket013")
pocket14.Profile = sketch16
pocket14.Length = 6

sketch17 = body.newObject("Sketcher::SketchObject", "Sketch016")
sketch17.Placement = App.Placement(App.Vector(-35.944864, 0, -20.752777), App.Rotation(App.Vector(-0.5, 0, 0.866025404), App.Vector(0, 1, 0), App.Vector(-0.866025404, 0, -0.5), "ZXY"))
sketch17.addGeometry(Part.Circle(App.Vector(10.1, 7, 0), App.Vector(0, 0, 1), 3), False)
sketch17.addConstraint([
    Sketcher.Constraint("Diameter", 0, Q("6 mm")),
    Sketcher.Constraint("DistanceY", -1, 1, 0, 3, Q("7 mm")),
    Sketcher.Constraint("DistanceX", -1, 1, 0, 3, Q("10.132051 mm")),
])
pocket15 = body.newObject("PartDesign::Pocket", "Pocket014")
pocket15.Profile = sketch17
pocket15.Length = 16

doc.recompute()
